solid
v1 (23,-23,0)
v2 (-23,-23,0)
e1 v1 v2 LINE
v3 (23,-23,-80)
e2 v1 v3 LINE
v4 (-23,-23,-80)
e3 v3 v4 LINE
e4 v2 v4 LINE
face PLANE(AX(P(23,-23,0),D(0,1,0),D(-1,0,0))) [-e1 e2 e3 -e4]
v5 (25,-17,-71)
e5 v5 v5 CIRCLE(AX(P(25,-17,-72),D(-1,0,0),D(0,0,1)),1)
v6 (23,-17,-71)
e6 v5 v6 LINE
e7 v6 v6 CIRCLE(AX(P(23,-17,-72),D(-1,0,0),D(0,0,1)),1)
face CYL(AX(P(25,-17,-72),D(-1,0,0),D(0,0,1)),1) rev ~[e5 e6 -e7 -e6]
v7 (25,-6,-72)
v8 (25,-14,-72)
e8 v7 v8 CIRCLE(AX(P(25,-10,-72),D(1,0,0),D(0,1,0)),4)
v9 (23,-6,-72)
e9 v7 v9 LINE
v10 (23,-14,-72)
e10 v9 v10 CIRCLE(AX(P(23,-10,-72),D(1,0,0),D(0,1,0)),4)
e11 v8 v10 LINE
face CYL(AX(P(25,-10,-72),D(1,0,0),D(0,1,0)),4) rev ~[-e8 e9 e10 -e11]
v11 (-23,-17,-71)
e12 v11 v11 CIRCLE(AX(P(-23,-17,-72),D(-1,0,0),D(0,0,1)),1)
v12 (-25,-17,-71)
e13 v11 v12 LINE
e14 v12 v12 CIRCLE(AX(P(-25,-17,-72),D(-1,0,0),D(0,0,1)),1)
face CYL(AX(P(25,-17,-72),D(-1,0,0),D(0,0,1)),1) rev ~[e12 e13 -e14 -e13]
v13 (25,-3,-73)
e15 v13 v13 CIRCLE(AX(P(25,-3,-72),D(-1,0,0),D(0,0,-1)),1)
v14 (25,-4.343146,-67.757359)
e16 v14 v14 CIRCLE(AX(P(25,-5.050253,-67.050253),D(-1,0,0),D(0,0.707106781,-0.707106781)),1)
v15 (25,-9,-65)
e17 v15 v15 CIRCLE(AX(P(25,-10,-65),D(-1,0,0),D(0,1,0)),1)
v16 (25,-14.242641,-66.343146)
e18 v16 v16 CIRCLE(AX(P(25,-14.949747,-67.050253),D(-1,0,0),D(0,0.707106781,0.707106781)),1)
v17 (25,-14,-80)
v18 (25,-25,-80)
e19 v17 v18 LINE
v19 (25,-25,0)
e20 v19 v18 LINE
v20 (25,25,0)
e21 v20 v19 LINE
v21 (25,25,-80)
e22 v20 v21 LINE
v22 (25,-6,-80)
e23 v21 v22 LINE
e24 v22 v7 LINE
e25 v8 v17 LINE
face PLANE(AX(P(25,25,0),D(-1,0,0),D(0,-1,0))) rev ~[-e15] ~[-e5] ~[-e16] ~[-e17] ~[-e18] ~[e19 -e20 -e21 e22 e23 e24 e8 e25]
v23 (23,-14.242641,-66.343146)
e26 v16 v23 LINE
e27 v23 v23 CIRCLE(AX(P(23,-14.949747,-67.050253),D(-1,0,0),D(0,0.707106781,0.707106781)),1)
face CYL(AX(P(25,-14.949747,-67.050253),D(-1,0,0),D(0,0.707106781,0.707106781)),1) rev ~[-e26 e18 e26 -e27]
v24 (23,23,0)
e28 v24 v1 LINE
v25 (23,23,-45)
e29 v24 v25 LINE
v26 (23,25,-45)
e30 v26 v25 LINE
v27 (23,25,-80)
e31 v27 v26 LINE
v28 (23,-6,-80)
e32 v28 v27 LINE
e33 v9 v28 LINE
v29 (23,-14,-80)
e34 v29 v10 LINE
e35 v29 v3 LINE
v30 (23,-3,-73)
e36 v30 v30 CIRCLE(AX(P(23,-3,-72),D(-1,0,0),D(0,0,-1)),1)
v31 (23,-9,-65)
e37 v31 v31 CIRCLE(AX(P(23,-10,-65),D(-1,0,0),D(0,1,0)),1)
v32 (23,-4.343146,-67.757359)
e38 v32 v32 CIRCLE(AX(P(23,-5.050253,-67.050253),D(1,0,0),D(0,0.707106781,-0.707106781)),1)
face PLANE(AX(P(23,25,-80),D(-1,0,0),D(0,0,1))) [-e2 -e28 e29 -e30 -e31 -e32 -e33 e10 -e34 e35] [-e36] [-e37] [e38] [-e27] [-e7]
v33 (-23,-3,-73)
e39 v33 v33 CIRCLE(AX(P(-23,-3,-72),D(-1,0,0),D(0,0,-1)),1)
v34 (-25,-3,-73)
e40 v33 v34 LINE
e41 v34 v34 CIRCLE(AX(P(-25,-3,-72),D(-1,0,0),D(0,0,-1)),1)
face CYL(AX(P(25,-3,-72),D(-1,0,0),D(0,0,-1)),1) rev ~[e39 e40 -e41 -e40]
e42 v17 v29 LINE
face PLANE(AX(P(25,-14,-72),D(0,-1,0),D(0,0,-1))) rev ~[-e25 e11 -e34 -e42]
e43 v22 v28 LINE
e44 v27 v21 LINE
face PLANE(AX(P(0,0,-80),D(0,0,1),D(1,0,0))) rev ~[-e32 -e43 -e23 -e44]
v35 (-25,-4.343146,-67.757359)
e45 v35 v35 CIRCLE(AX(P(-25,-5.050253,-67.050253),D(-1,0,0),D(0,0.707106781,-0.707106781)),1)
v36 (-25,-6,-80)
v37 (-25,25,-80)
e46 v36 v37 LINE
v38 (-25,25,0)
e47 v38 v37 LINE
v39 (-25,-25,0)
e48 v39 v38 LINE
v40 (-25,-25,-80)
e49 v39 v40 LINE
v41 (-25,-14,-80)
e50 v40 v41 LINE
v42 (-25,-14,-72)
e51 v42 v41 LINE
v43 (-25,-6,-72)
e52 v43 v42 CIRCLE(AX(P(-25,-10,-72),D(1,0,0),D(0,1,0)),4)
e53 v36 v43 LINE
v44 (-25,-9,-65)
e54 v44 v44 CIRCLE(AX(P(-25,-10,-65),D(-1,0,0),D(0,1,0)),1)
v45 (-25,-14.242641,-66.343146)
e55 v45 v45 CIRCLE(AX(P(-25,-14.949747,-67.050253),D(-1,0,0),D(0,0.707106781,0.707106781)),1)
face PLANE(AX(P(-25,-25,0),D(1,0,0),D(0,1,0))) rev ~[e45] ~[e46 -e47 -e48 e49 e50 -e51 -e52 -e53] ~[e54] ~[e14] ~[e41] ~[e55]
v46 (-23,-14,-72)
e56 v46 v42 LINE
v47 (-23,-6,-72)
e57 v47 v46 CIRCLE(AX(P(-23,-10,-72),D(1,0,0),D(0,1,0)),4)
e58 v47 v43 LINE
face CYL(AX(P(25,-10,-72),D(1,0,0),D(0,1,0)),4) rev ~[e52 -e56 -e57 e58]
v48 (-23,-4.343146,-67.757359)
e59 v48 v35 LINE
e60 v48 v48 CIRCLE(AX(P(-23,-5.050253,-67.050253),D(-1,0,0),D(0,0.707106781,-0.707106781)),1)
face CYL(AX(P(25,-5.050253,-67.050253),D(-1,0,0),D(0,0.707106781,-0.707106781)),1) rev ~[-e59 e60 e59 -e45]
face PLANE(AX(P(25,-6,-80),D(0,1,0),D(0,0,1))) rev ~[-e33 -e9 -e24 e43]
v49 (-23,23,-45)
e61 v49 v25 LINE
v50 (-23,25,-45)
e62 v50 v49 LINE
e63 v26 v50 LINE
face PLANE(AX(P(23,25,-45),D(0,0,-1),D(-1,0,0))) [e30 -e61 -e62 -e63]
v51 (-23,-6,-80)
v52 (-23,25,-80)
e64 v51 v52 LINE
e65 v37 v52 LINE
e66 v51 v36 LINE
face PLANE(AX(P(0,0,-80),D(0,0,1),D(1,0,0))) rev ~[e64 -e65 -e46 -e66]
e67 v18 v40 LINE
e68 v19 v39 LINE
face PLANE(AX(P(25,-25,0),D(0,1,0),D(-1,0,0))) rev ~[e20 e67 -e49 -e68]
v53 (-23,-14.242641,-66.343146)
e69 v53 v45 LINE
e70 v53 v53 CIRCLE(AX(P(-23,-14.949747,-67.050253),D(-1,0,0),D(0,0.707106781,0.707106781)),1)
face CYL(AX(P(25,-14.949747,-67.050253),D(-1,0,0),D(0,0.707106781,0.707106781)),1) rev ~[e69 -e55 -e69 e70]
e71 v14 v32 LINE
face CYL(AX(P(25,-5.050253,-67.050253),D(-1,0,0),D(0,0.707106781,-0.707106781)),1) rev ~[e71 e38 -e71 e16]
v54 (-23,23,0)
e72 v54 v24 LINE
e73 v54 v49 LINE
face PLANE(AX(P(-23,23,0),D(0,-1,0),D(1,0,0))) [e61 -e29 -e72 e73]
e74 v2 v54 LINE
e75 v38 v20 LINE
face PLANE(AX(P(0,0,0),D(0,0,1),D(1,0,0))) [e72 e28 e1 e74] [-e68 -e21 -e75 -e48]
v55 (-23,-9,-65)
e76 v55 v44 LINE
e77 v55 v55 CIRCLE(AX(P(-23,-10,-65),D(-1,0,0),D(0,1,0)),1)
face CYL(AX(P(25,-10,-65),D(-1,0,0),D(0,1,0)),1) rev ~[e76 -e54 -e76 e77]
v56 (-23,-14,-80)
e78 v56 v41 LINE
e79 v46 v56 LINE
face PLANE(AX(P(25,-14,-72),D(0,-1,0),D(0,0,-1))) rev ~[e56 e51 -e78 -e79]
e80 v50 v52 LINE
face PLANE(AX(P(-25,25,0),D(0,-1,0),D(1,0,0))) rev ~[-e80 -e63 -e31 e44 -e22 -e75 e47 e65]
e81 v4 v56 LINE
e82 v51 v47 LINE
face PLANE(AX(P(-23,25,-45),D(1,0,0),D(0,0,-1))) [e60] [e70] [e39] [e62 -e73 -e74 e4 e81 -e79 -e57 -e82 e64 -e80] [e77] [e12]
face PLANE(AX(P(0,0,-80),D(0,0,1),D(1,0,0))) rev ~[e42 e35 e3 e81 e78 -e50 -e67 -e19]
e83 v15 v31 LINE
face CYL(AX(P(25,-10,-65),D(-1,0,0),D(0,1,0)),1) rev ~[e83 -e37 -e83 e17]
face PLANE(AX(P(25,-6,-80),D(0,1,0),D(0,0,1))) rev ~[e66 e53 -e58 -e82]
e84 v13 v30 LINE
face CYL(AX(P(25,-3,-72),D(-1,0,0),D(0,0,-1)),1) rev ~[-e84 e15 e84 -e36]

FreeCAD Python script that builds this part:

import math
import FreeCAD as App
import Part
import Sketcher

V = App.Vector
Q = App.Units.Quantity

doc = App.newDocument("Part")
params = doc.addObject("Spreadsheet::Sheet", "Params")
for row, (alias, value) in enumerate([
    ("sketch1_width", "50 mm"),
    ("sketch1_width2", "46 mm"),
    ("pad1_length", "80 mm"),
    ("sketch2_radius", "4 mm"),
    ("pocket1_length", "60 mm"),
    ("sketch3_diameter", "2 mm"),
    ("hole_diameter", "2 mm"),
    ("sketch4_width", "46 mm"),
    ("sketch4_height", "35 mm"),
    ("pocket2_length", "30 mm"),
], start=1):
    params.set(f"A{row}", alias)
    params.set(f"B{row}", "=" + value)
    params.setAlias(f"B{row}", alias)

body = doc.addObject("PartDesign::Body", "Body")

# Sketch on XY plane
sketch1 = doc.addObject("Sketcher::SketchObject", "Sketch")
body.addObject(sketch1)
sketch1.AttachmentSupport = (doc.XY_Plane, [""])
sketch1.MapMode = "FlatFace"
sketch1.addGeometry([
    Part.LineSegment(V(25, 25, 0), V(-25, 25, 0)),  # 0
    Part.LineSegment(V(-25, 25, 0), V(-25, -25, 0)),  # 1
    Part.LineSegment(V(-25, -25, 0), V(25, -25, 0)),  # 2
    Part.LineSegment(V(25, -25, 0), V(25, 25, 0)),  # 3
    Part.LineSegment(V(-23, -23, 0), V(-23, 23, 0)),  # 4
    Part.LineSegment(V(-23, 23, 0), V(23, 23, 0)),  # 5
    Part.LineSegment(V(23, 23, 0), V(23, -23, 0)),  # 6
    Part.LineSegment(V(23, -23, 0), V(-23, -23, 0)),  # 7
], False)
sketch1.addConstraint([
    Sketcher.Constraint("Coincident", 0, 2, 1, 1),
    Sketcher.Constraint("Coincident", 1, 2, 2, 1),
    Sketcher.Constraint("Coincident", 2, 2, 3, 1),
    Sketcher.Constraint("Coincident", 3, 2, 0, 1),
    Sketcher.Constraint("Coincident", 4, 2, 5, 1),
    Sketcher.Constraint("Coincident", 5, 2, 6, 1),
    Sketcher.Constraint("Coincident", 6, 2, 7, 1),
    Sketcher.Constraint("Coincident", 7, 2, 4, 1),
    Sketcher.Constraint("Horizontal", 0),
    Sketcher.Constraint("Vertical", 1),
    Sketcher.Constraint("Horizontal", 2),
    Sketcher.Constraint("Vertical", 3),
    Sketcher.Constraint("Vertical", 4),
    Sketcher.Constraint("Horizontal", 5),
    Sketcher.Constraint("Vertical", 6),
    Sketcher.Constraint("Horizontal", 7),
    Sketcher.Constraint("Symmetric", 0, 2, 2, 2, -1, 1),
    Sketcher.Constraint("Symmetric", 4, 2, 6, 2, -1, 1),
    Sketcher.Constraint("Equal", 2, 1),
    Sketcher.Constraint("Equal", 7, 4),
    Sketcher.Constraint("DistanceX", 0, 2, 0, 1, Q("50 mm")),
    Sketcher.Constraint("DistanceX", 5, 1, 5, 2, Q("46 mm")),
])
sketch1.setExpression("Constraints[20]", "Params.sketch1_width")
sketch1.setExpression("Constraints[21]", "Params.sketch1_width2")
pad1 = doc.addObject("PartDesign::Pad", "Pad")
body.addObject(pad1)
pad1.Profile = sketch1
pad1.setExpression("Length", "Params.pad1_length")
pad1.Reversed = True

# Sketch on YZ plane
sketch2 = doc.addObject("Sketcher::SketchObject", "Sketch001")
body.addObject(sketch2)
sketch2.AttachmentSupport = (doc.YZ_Plane, [""])
sketch2.MapMode = "FlatFace"
sketch2.AttachmentOffset = App.Placement(V(0, 0, 25), App.Rotation())
sketch2.addGeometry([
    Part.LineSegment(V(-14, -80, 0), V(-6, -80, 0)),
    Part.LineSegment(V(-6, -80, 0), V(-6, -72, 0)),
    Part.ArcOfCircle(Part.Circle(V(-10, -72, 0), V(0, 0, 1), 4), math.radians(0), math.radians(180)),
    Part.LineSegment(V(-14, -72, 0), V(-14, -80, 0)),
], False)
sketch2.addConstraint([
    Sketcher.Constraint("Coincident", 0, 2, 1, 1),
    Sketcher.Constraint("Tangent", 1, 2, 2, 1),
    Sketcher.Constraint("Tangent", 2, 2, 3, 1),
    Sketcher.Constraint("Coincident", 3, 2, 0, 1),
    Sketcher.Constraint("Horizontal", 0),
    Sketcher.Constraint("Vertical", 1),
    Sketcher.Constraint("Vertical", 3),
    Sketcher.Constraint("Equal", 0, 1),
    Sketcher.Constraint("Radius", 2, Q("4 mm")),
    Sketcher.Constraint("DistanceX", 2, 3, -1, 1, Q("10 mm")),
    Sketcher.Constraint("DistanceY", 2, 3, -1, 1, Q("72 mm")),
])
sketch2.setExpression("Constraints[8]", "Params.sketch2_radius")
pocket1 = doc.addObject("PartDesign::Pocket", "Pocket")
body.addObject(pocket1)
pocket1.Profile = sketch2
pocket1.setExpression("Length", "Params.pocket1_length")

# Sketch on YZ plane
sketch3 = doc.addObject("Sketcher::SketchObject", "Sketch002")
body.addObject(sketch3)
sketch3.AttachmentSupport = (doc.YZ_Plane, [""])
sketch3.MapMode = "FlatFace"
sketch3.AttachmentOffset = App.Placement(V(0, 0, 25), App.Rotation())
sketch3.addGeometry(Part.Circle(V(-3, -72, 0), V(0, 0, 1), 1), False)
sketch3.addConstraint([
    Sketcher.Constraint("Diameter", 0, Q("2 mm")),
    Sketcher.Constraint("DistanceX", 0, 3, -1, 1, Q("3 mm")),
    Sketcher.Constraint("DistanceY", 0, 3, -1, 1, Q("72 mm")),
])
sketch3.setExpression("Constraints[0]", "Params.sketch3_diameter")
doc.recompute()
hole = doc.addObject("PartDesign::Hole", "Hole")
body.addObject(hole)
hole.Profile = sketch3
hole.ThreadType = "None"
hole.setExpression("Diameter", "Params.hole_diameter")
hole.DepthType = "ThroughAll"
doc.recompute()

datumline = doc.addObject("PartDesign::Line", "DatumLine")
body.addObject(datumline)
datumline.Placement = App.Placement(V(0, -10, -72), App.Rotation(V(0, 0, 1), V(1, 0, 0)))
polarpattern = doc.addObject("PartDesign::PolarPattern", "PolarPattern")
body.addObject(polarpattern)
polarpattern.Originals = [hole]
polarpattern.Axis = (datumline, [""])
polarpattern.Angle = 180
polarpattern.Occurrences = 5
body.Tip = polarpattern

# Sketch on XZ plane
sketch4 = doc.addObject("Sketcher::SketchObject", "Sketch003")
body.addObject(sketch4)
sketch4.AttachmentSupport = (doc.XZ_Plane, [""])
sketch4.MapMode = "FlatFace"
sketch4.AttachmentOffset = App.Placement(V(0, 0, -25), App.Rotation())
sketch4.addGeometry([
    Part.LineSegment(V(23, -80, 0), V(-23, -80, 0)),
    Part.LineSegment(V(-23, -80, 0), V(-23, -45, 0)),
    Part.LineSegment(V(-23, -45, 0), V(23, -45, 0)),
    Part.LineSegment(V(23, -45, 0), V(23, -80, 0)),
], False)
sketch4.addConstraint([
    Sketcher.Constraint("Coincident", 0, 2, 1, 1),
    Sketcher.Constraint("Coincident", 1, 2, 2, 1),
    Sketcher.Constraint("Coincident", 2, 2, 3, 1),
    Sketcher.Constraint("Coincident", 3, 2, 0, 1),
    Sketcher.Constraint("Horizontal", 0),
    Sketcher.Constraint("Vertical", 1),
    Sketcher.Constraint("Horizontal", 2),
    Sketcher.Constraint("Vertical", 3),
    Sketcher.Constraint("DistanceX", 0, 2, 0, 1, Q("46 mm")),
    Sketcher.Constraint("DistanceY", 1, 1, 1, 2, Q("35 mm")),
    Sketcher.Constraint("DistanceX", 0, 2, -1, 1, Q("23 mm")),
    Sketcher.Constraint("DistanceY", 0, 2, -1, 1, Q("80 mm")),
])
sketch4.setExpression("Constraints[8]", "Params.sketch4_width")
sketch4.setExpression("Constraints[9]", "Params.sketch4_height")
pocket2 = doc.addObject("PartDesign::Pocket", "Pocket001")
body.addObject(pocket2)
pocket2.Profile = sketch4
pocket2.setExpression("Length", "Params.pocket2_length")
pocket2.Reversed = True

doc.recompute()
